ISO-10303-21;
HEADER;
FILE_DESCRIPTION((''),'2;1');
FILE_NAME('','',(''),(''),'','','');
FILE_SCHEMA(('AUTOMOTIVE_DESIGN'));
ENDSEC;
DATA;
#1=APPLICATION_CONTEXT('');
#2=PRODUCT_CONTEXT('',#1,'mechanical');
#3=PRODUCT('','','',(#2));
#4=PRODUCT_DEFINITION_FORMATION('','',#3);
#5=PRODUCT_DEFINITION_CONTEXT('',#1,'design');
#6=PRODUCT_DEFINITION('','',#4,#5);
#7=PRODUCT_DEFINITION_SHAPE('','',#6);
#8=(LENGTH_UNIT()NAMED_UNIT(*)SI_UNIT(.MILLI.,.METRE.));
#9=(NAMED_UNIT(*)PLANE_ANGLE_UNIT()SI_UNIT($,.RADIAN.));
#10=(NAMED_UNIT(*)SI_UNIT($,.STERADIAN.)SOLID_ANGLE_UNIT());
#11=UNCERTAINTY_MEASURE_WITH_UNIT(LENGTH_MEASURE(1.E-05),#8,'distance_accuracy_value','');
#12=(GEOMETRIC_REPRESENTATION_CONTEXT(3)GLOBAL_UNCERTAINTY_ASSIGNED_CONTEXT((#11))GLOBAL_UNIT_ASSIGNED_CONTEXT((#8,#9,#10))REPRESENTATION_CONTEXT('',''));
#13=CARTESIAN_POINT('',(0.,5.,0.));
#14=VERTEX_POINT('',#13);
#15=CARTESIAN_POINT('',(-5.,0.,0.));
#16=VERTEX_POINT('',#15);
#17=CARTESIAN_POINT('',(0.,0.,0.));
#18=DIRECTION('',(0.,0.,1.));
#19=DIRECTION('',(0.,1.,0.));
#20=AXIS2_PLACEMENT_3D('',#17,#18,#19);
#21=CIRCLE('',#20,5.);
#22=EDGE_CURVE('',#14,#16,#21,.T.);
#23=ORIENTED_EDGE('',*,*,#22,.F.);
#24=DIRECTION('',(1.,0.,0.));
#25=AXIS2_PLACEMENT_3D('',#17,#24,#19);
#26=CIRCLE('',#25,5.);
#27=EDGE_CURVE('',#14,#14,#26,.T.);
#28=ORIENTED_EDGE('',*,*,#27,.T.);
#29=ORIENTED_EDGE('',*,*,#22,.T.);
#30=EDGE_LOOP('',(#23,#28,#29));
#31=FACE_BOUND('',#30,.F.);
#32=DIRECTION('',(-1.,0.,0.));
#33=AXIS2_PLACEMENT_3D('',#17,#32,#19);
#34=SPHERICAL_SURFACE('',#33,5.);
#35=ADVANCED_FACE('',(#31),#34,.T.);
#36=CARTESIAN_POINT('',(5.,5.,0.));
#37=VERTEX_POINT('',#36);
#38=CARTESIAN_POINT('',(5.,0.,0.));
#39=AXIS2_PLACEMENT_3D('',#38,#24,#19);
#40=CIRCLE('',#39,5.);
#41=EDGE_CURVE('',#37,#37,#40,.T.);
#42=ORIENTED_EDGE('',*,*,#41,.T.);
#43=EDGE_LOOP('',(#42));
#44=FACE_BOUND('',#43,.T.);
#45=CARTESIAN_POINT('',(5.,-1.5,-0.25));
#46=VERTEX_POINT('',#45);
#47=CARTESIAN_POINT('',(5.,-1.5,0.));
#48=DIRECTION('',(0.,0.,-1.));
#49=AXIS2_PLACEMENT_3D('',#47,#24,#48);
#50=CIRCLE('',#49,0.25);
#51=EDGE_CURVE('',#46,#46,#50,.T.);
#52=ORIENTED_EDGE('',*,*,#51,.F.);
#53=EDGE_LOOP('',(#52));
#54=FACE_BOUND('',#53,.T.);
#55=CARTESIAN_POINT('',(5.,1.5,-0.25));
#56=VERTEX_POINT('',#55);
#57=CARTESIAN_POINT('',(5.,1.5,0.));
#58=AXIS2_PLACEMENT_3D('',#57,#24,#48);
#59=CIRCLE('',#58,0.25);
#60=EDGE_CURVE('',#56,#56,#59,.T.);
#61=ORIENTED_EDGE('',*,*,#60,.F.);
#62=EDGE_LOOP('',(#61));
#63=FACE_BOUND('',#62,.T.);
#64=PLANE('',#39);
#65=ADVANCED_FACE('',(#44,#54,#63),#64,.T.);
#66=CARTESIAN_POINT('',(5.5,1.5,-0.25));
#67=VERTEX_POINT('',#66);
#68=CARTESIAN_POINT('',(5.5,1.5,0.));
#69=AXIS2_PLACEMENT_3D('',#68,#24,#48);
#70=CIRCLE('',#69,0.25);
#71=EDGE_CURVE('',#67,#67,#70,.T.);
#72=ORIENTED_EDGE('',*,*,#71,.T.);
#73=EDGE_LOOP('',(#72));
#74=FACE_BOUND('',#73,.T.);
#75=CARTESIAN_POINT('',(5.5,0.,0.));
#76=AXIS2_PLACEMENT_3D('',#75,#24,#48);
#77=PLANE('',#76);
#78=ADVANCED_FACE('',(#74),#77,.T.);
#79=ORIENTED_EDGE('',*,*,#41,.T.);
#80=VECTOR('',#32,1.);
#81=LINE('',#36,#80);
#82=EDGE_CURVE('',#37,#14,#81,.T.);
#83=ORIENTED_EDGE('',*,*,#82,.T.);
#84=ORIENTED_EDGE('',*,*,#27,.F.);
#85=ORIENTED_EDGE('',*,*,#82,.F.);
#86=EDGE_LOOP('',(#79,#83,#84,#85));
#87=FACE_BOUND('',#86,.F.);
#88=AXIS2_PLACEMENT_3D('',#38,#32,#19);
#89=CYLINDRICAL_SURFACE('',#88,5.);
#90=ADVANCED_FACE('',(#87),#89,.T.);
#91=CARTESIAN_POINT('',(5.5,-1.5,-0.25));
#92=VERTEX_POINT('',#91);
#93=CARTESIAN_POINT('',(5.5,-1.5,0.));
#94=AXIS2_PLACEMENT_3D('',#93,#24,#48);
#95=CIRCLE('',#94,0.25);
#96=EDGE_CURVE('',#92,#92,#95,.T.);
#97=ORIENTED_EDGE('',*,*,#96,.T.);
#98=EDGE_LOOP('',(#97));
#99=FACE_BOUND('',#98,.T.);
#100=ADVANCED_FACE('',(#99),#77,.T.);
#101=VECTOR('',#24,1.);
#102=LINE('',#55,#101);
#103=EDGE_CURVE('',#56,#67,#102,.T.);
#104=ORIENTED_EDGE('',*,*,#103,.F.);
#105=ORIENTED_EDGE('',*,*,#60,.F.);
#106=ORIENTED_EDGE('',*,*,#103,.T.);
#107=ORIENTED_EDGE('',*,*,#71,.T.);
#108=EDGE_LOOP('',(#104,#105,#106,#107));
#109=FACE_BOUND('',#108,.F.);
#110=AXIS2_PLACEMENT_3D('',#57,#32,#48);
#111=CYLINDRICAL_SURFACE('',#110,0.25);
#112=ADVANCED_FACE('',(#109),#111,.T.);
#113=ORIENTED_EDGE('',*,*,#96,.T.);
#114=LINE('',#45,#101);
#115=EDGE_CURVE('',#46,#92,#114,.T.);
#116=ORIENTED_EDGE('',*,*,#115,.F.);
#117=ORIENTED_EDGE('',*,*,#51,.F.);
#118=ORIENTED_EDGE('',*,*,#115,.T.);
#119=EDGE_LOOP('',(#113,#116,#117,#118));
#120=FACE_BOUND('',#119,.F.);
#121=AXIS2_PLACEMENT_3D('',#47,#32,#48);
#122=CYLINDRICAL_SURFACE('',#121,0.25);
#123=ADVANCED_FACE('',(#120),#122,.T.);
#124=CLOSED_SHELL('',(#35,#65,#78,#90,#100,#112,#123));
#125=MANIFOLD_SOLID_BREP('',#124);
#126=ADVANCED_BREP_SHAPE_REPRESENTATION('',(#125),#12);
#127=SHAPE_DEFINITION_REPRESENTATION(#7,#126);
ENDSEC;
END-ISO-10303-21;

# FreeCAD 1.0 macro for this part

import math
import FreeCAD as App
import Part
import Sketcher

doc = App.newDocument("Part")
body = doc.addObject("PartDesign::Body", "Body")

sketch1 = doc.addObject("Sketcher::SketchObject", "Sketch")
body.addObject(sketch1)
sketch1.AttachmentSupport = (doc.XY_Plane, [""])
sketch1.MapMode = "FlatFace"
sketch1.addGeometry(Part.ArcOfCircle(Part.Circle(App.Vector(0, 0, 0), App.Vector(0, 0, 1), 5), math.radians(90), math.radians(180)), False)
sketch1.addGeometry(Part.LineSegment(App.Vector(-5, 0, 0), App.Vector(5, 0, 0)), False)
sketch1.addGeometry(Part.LineSegment(App.Vector(5, 0, 0), App.Vector(5, 5, 0)), False)
sketch1.addGeometry(Part.LineSegment(App.Vector(5, 5, 0), App.Vector(0, 5, 0)), False)
sketch1.addConstraint(Sketcher.Constraint("Coincident", 0, 2, 1, 1))
sketch1.addConstraint(Sketcher.Constraint("Coincident", 1, 2, 2, 1))
sketch1.addConstraint(Sketcher.Constraint("Coincident", 2, 2, 3, 1))
sketch1.addConstraint(Sketcher.Constraint("Tangent", 3, 2, 0, 1))
sketch1.addConstraint(Sketcher.Constraint("Horizontal", 1))
sketch1.addConstraint(Sketcher.Constraint("Vertical", 2))
sketch1.addConstraint(Sketcher.Constraint("Horizontal", 3))
sketch1.addConstraint(Sketcher.Constraint("Coincident", 0, 3, -1, 1))
sketch1.addConstraint(Sketcher.Constraint("Symmetric", 0, 2, 1, 2, -1, 1))
sketch1.addConstraint(Sketcher.Constraint("Radius", 0, 5.0))
revolution = doc.addObject("PartDesign::Revolution", "Revolution")
body.addObject(revolution)
revolution.Profile = sketch1
revolution.ReferenceAxis = (sketch1, ["H_Axis"])
revolution.Angle = 360

sketch2 = doc.addObject("Sketcher::SketchObject", "Sketch001")
body.addObject(sketch2)
sketch2.AttachmentSupport = (doc.YZ_Plane, [""])
sketch2.MapMode = "FlatFace"
sketch2.AttachmentOffset = App.Placement(App.Vector(0, 0, 5), App.Rotation())
sketch2.addGeometry(Part.Circle(App.Vector(1.5, 0, 0), App.Vector(0, 0, 1), 0.25), False)
sketch2.addGeometry(Part.Circle(App.Vector(-1.5, 0, 0), App.Vector(0, 0, 1), 0.25), False)
sketch2.addConstraint(Sketcher.Constraint("Equal", 0, 1))
sketch2.addConstraint(Sketcher.Constraint("Symmetric", 0, 3, 1, 3, -1, 1))
sketch2.addConstraint(Sketcher.Constraint("PointOnObject", 0, 3, -1))
sketch2.addConstraint(Sketcher.Constraint("Diameter", 0, 0.5))
sketch2.addConstraint(Sketcher.Constraint("DistanceX", 1, 3, 0, 3, 3.0))
pad1 = doc.addObject("PartDesign::Pad", "Pad")
body.addObject(pad1)
pad1.Profile = sketch2
pad1.Length = 0.5

doc.recompute()
